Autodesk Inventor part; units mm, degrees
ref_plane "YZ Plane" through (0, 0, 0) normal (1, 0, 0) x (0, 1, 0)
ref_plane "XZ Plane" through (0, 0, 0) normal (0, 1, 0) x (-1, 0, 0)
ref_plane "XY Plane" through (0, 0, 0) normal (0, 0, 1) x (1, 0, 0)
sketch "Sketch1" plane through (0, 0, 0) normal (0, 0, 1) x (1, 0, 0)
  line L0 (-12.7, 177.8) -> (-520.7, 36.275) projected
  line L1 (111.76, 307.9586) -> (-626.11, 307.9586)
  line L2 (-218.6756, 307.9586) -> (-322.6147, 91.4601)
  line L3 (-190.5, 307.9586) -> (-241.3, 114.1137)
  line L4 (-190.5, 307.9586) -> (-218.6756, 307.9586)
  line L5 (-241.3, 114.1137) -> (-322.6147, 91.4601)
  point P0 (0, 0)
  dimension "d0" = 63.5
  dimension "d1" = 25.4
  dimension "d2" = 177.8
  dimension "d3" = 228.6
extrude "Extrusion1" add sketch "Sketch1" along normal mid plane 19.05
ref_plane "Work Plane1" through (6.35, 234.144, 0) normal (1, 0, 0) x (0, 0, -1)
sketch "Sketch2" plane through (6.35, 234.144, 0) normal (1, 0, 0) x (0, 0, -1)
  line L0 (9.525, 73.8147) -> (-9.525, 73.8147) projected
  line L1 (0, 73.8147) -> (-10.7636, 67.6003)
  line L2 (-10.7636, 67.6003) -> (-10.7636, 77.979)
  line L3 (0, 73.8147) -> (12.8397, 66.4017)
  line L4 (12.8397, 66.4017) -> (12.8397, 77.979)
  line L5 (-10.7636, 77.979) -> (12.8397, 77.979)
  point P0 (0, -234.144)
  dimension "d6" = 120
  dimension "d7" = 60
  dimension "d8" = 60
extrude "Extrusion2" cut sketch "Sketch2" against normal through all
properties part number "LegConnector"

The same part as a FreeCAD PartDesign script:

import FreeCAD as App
import Part
import Sketcher
Q = App.Units.Quantity

doc = App.newDocument("Part")
body = doc.addObject("PartDesign::Body", "Body")

sketch1 = body.newObject("Sketcher::SketchObject", "Sketch")
sketch1.AttachmentSupport = (doc.getObject("XY_Plane"), [""])
sketch1.MapMode = "FlatFace"
sketch1.addGeometry([
    Part.LineSegment(App.Vector(-323, 91, 0), App.Vector(-241, 114, 0)),
    Part.LineSegment(App.Vector(-241, 114, 0), App.Vector(-190, 308, 0)),
    Part.LineSegment(App.Vector(-190, 308, 0), App.Vector(-219, 308, 0)),
    Part.LineSegment(App.Vector(-219, 308, 0), App.Vector(-323, 91, 0)),
], False)
sketch1.addConstraint([
    Sketcher.Constraint("Coincident", 0, 2, 1, 1),
    Sketcher.Constraint("Coincident", 1, 2, 2, 1),
    Sketcher.Constraint("Coincident", 2, 2, 3, 1),
    Sketcher.Constraint("Coincident", 3, 2, 0, 1),
    Sketcher.Constraint("Horizontal", 2),
    Sketcher.Constraint("DistanceX", 0, 2, 1, 2, Q("2 in")),
    Sketcher.Constraint("DistanceX", 0, 2, -1, 1, Q("9.5 in")),
    Sketcher.Constraint("Distance", 1, Q("7.8894 in")),
    Sketcher.Constraint("DistanceX", 2, 2, 2, 1, Q("28.1756 mm")),
    Sketcher.Constraint("DistanceY", -1, 1, 3, 2, Q("3.6008 in")),
    Sketcher.Constraint("DistanceX", 3, 2, 2, 2, Q("4.0921 in")),
    Sketcher.Constraint("Distance", 0, Q("84.4113 mm")),
])
pad1 = body.newObject("PartDesign::Pad", "Pad")
pad1.Profile = sketch1
pad1.Length = Q("0.75 in")
pad1.Midplane = True

sketch2 = body.newObject("Sketcher::SketchObject", "Sketch001")
sketch2.AttachmentSupport = (doc.getObject("YZ_Plane"), [""])
sketch2.MapMode = "FlatFace"
sketch2.AttachmentOffset = App.Placement(App.Vector(0, 0, 0.25 * 25.4), App.Rotation())
sketch2.addGeometry([
    Part.LineSegment(App.Vector(302, 11, 0), App.Vector(308, 0, 0)),
    Part.LineSegment(App.Vector(308, 0, 0), App.Vector(301, -13, 0)),
    Part.LineSegment(App.Vector(301, -13, 0), App.Vector(312, -13, 0)),
    Part.LineSegment(App.Vector(312, -13, 0), App.Vector(312, 11, 0)),
    Part.LineSegment(App.Vector(312, 11, 0), App.Vector(302, 11, 0)),
], False)
sketch2.addConstraint([
    Sketcher.Constraint("Coincident", 0, 2, 1, 1),
    Sketcher.Constraint("Coincident", 1, 2, 2, 1),
    Sketcher.Constraint("Coincident", 2, 2, 3, 1),
    Sketcher.Constraint("Coincident", 3, 2, 4, 1),
    Sketcher.Constraint("Coincident", 4, 2, 0, 1),
    Sketcher.Constraint("Horizontal", 2),
    Sketcher.Constraint("Vertical", 3),
    Sketcher.Constraint("Horizontal", 4),
    Sketcher.Constraint("PointOnObject", 0, 2, -1),
    Sketcher.Constraint("Angle", 0, Q("-59.9999 deg")),
    Sketcher.Constraint("Angle", 1, Q("-120 deg")),
    Sketcher.Constraint("DistanceX", 2, 1, 2, 2, Q("0.4558 in")),
    Sketcher.Constraint("DistanceX", 4, 2, 4, 1, Q("0.4086 in")),
    Sketcher.Constraint("Distance", 1, Q("0.5837 in")),
    Sketcher.Constraint("DistanceX", -1, 1, 1, 2, Q("11.8325 in")),
])
pocket1 = body.newObject("PartDesign::Pocket", "Pocket")
pocket1.Profile = sketch2
pocket1.Type = "ThroughAll"

doc.recompute()
